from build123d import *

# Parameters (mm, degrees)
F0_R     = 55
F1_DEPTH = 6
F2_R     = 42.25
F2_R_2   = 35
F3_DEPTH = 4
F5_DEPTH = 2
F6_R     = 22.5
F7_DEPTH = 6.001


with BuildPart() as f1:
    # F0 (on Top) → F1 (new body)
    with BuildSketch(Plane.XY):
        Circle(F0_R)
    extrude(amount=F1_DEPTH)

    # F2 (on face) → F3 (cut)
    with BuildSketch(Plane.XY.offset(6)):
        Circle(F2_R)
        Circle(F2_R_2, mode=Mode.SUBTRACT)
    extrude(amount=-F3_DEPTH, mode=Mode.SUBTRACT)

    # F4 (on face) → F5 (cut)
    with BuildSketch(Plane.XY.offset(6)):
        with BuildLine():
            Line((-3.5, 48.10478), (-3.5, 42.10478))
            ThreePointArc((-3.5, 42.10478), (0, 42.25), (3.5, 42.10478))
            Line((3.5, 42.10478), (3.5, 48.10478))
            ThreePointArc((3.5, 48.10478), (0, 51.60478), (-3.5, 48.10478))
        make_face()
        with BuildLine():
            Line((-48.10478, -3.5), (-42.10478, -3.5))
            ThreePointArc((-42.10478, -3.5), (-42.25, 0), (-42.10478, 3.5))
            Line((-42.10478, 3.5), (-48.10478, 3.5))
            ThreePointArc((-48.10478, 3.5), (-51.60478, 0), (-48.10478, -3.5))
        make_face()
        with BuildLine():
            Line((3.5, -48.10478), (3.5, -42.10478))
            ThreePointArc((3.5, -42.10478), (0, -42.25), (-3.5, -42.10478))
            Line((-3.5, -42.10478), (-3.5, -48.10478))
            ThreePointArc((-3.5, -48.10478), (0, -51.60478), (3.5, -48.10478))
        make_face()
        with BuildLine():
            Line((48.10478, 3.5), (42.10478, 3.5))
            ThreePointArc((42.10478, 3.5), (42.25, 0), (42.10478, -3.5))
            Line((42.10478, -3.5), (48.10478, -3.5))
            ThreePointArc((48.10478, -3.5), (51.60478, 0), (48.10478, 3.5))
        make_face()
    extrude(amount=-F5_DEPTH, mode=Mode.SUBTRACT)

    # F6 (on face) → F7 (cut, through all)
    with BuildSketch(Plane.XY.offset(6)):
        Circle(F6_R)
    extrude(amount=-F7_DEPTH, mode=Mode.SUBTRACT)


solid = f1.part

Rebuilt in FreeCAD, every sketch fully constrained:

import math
import FreeCAD as App
import Part
import Sketcher
Q = App.Units.Quantity

doc = App.newDocument("Part")
body = doc.addObject("PartDesign::Body", "Body")

# Sketch on XY plane
sketch1 = doc.addObject("Sketcher::SketchObject", "Sketch")
body.addObject(sketch1)
sketch1.AttachmentSupport = (doc.XY_Plane, [""])
sketch1.MapMode = "FlatFace"
sketch1.addGeometry(Part.Circle(App.Vector(0, 0, 0), App.Vector(0, 0, 1), 55), False)
sketch1.addConstraint(Sketcher.Constraint("Coincident", 0, 3, -1, 1))
sketch1.addConstraint(Sketcher.Constraint("Diameter", 0, Q("110 mm")))
pad1 = doc.addObject("PartDesign::Pad", "Pad")
body.addObject(pad1)
pad1.Profile = sketch1
pad1.Length = 6

# Sketch on XY plane
sketch2 = doc.addObject("Sketcher::SketchObject", "Sketch001")
body.addObject(sketch2)
sketch2.AttachmentSupport = (doc.XY_Plane, [""])
sketch2.MapMode = "FlatFace"
sketch2.AttachmentOffset = App.Placement(App.Vector(0, 0, 6), App.Rotation())
sketch2.addGeometry(Part.Circle(App.Vector(0, 0, 0), App.Vector(0, 0, 1), 42.25), False)
sketch2.addGeometry(Part.Circle(App.Vector(0, 0, 0), App.Vector(0, 0, 1), 35), False)
sketch2.addConstraint(Sketcher.Constraint("Coincident", 0, 3, -1, 1))
sketch2.addConstraint(Sketcher.Constraint("Coincident", 1, 3, -1, 1))
sketch2.addConstraint(Sketcher.Constraint("Diameter", 1, Q("70 mm")))
sketch2.addConstraint(Sketcher.Constraint("Diameter", 0, Q("84.5 mm")))
pocket1 = doc.addObject("PartDesign::Pocket", "Pocket")
body.addObject(pocket1)
pocket1.Profile = sketch2
pocket1.Length = 4

# Sketch on XY plane
sketch3 = doc.addObject("Sketcher::SketchObject", "Sketch002")
body.addObject(sketch3)
sketch3.AttachmentSupport = (doc.XY_Plane, [""])
sketch3.MapMode = "FlatFace"
sketch3.AttachmentOffset = App.Placement(App.Vector(0, 0, 6), App.Rotation())
sketch3.addGeometry(Part.LineSegment(App.Vector(-3.5, 48.10478, 0), App.Vector(-3.5, 42.10478, 0)), False)
sketch3.addGeometry(Part.ArcOfCircle(Part.Circle(App.Vector(0, 0.000004, 0), App.Vector(0, 0, 1), 42.249996), math.radians(85.248158), math.radians(94.751842)), False)
sketch3.addGeometry(Part.LineSegment(App.Vector(3.5, 42.10478, 0), App.Vector(3.5, 48.10478, 0)), False)
sketch3.addGeometry(Part.ArcOfCircle(Part.Circle(App.Vector(0, 48.10478, 0), App.Vector(0, 0, 1), 3.5), math.radians(0), math.radians(180)), False)
sketch3.addGeometry(Part.LineSegment(App.Vector(-48.10478, -3.5, 0), App.Vector(-42.10478, -3.5, 0)), False)
sketch3.addGeometry(Part.ArcOfCircle(Part.Circle(App.Vector(-0.000004, 0, 0), App.Vector(0, 0, 1), 42.249996), math.radians(175.248158), math.radians(184.751842)), False)
sketch3.addGeometry(Part.LineSegment(App.Vector(-42.10478, 3.5, 0), App.Vector(-48.10478, 3.5, 0)), False)
sketch3.addGeometry(Part.ArcOfCircle(Part.Circle(App.Vector(-48.10478, 0, 0), App.Vector(0, 0, 1), 3.5), math.radians(90), math.radians(270)), False)
sketch3.addGeometry(Part.LineSegment(App.Vector(3.5, -48.10478, 0), App.Vector(3.5, -42.10478, 0)), False)
sketch3.addGeometry(Part.ArcOfCircle(Part.Circle(App.Vector(0, -0.000004, 0), App.Vector(0, 0, 1), 42.249996), math.radians(-94.751842), math.radians(-85.248158)), False)
sketch3.addGeometry(Part.LineSegment(App.Vector(-3.5, -42.10478, 0), App.Vector(-3.5, -48.10478, 0)), False)
sketch3.addGeometry(Part.ArcOfCircle(Part.Circle(App.Vector(0, -48.10478, 0), App.Vector(0, 0, 1), 3.5), math.radians(180), math.radians(360)), False)
sketch3.addGeometry(Part.LineSegment(App.Vector(48.10478, 3.5, 0), App.Vector(42.10478, 3.5, 0)), False)
sketch3.addGeometry(Part.ArcOfCircle(Part.Circle(App.Vector(0.000004, 0, 0), App.Vector(0, 0, 1), 42.249996), math.radians(-4.751842), math.radians(4.751842)), False)
sketch3.addGeometry(Part.LineSegment(App.Vector(42.10478, -3.5, 0), App.Vector(48.10478, -3.5, 0)), False)
sketch3.addGeometry(Part.ArcOfCircle(Part.Circle(App.Vector(48.10478, 0, 0), App.Vector(0, 0, 1), 3.5), math.radians(-90), math.radians(90)), False)
sketch3.addConstraint(Sketcher.Constraint("Coincident", 0, 2, 1, 2))
sketch3.addConstraint(Sketcher.Constraint("Coincident", 1, 1, 2, 1))
sketch3.addConstraint(Sketcher.Constraint("Tangent", 2, 2, 3, 1))
sketch3.addConstraint(Sketcher.Constraint("Tangent", 3, 2, 0, 1))
sketch3.addConstraint(Sketcher.Constraint("Coincident", 4, 2, 5, 2))
sketch3.addConstraint(Sketcher.Constraint("Coincident", 5, 1, 6, 1))
sketch3.addConstraint(Sketcher.Constraint("Tangent", 6, 2, 7, 1))
sketch3.addConstraint(Sketcher.Constraint("Tangent", 7, 2, 4, 1))
sketch3.addConstraint(Sketcher.Constraint("Coincident", 8, 2, 9, 2))
sketch3.addConstraint(Sketcher.Constraint("Coincident", 9, 1, 10, 1))
sketch3.addConstraint(Sketcher.Constraint("Tangent", 10, 2, 11, 1))
sketch3.addConstraint(Sketcher.Constraint("Tangent", 11, 2, 8, 1))
sketch3.addConstraint(Sketcher.Constraint("Coincident", 12, 2, 13, 2))
sketch3.addConstraint(Sketcher.Constraint("Coincident", 13, 1, 14, 1))
sketch3.addConstraint(Sketcher.Constraint("Tangent", 14, 2, 15, 1))
sketch3.addConstraint(Sketcher.Constraint("Tangent", 15, 2, 12, 1))
sketch3.addConstraint(Sketcher.Constraint("Vertical", 0))
sketch3.addConstraint(Sketcher.Constraint("Vertical", 2))
sketch3.addConstraint(Sketcher.Constraint("Horizontal", 4))
sketch3.addConstraint(Sketcher.Constraint("Horizontal", 6))
sketch3.addConstraint(Sketcher.Constraint("Vertical", 8))
sketch3.addConstraint(Sketcher.Constraint("Vertical", 10))
sketch3.addConstraint(Sketcher.Constraint("Horizontal", 12))
sketch3.addConstraint(Sketcher.Constraint("Horizontal", 14))
sketch3.addConstraint(Sketcher.Constraint("Coincident", 1, 3, -1, 1))
sketch3.addConstraint(Sketcher.Constraint("Coincident", 5, 3, -1, 1))
sketch3.addConstraint(Sketcher.Constraint("Coincident", 9, 3, -1, 1))
sketch3.addConstraint(Sketcher.Constraint("Coincident", 13, 3, -1, 1))
sketch3.addConstraint(Sketcher.Constraint("Equal", 1, 5))
sketch3.addConstraint(Sketcher.Constraint("Equal", 3, 7))
sketch3.addConstraint(Sketcher.Constraint("Equal", 5, 9))
sketch3.addConstraint(Sketcher.Constraint("Equal", 7, 11))
sketch3.addConstraint(Sketcher.Constraint("Equal", 9, 13))
sketch3.addConstraint(Sketcher.Constraint("Equal", 11, 15))
sketch3.addConstraint(Sketcher.Constraint("Symmetric", 3, 3, 11, 3, -1, 1))
sketch3.addConstraint(Sketcher.Constraint("Symmetric", 7, 3, 15, 3, -1, 1))
sketch3.addConstraint(Sketcher.Constraint("PointOnObject", 3, 3, -2))
sketch3.addConstraint(Sketcher.Constraint("PointOnObject", 7, 3, -1))
sketch3.addConstraint(Sketcher.Constraint("Equal", 14, 0))
sketch3.addConstraint(Sketcher.Constraint("Radius", 3, Q("3.5 mm")))
sketch3.addConstraint(Sketcher.Constraint("DistanceX", 4, 1, 4, 2, Q("6 mm")))
sketch3.addConstraint(Sketcher.Constraint("Radius", 1, Q("42.249996 mm")))
pocket2 = doc.addObject("PartDesign::Pocket", "Pocket001")
body.addObject(pocket2)
pocket2.Profile = sketch3
pocket2.Length = 2

# Sketch on XY plane
sketch4 = doc.addObject("Sketcher::SketchObject", "Sketch003")
body.addObject(sketch4)
sketch4.AttachmentSupport = (doc.XY_Plane, [""])
sketch4.MapMode = "FlatFace"
sketch4.AttachmentOffset = App.Placement(App.Vector(0, 0, 6), App.Rotation())
sketch4.addGeometry(Part.Circle(App.Vector(0, 0, 0), App.Vector(0, 0, 1), 22.5), False)
sketch4.addConstraint(Sketcher.Constraint("Coincident", 0, 3, -1, 1))
sketch4.addConstraint(Sketcher.Constraint("Diameter", 0, Q("45 mm")))
pocket3 = doc.addObject("PartDesign::Pocket", "Pocket002")
body.addObject(pocket3)
pocket3.Profile = sketch4
pocket3.Type = "ThroughAll"

doc.recompute()
